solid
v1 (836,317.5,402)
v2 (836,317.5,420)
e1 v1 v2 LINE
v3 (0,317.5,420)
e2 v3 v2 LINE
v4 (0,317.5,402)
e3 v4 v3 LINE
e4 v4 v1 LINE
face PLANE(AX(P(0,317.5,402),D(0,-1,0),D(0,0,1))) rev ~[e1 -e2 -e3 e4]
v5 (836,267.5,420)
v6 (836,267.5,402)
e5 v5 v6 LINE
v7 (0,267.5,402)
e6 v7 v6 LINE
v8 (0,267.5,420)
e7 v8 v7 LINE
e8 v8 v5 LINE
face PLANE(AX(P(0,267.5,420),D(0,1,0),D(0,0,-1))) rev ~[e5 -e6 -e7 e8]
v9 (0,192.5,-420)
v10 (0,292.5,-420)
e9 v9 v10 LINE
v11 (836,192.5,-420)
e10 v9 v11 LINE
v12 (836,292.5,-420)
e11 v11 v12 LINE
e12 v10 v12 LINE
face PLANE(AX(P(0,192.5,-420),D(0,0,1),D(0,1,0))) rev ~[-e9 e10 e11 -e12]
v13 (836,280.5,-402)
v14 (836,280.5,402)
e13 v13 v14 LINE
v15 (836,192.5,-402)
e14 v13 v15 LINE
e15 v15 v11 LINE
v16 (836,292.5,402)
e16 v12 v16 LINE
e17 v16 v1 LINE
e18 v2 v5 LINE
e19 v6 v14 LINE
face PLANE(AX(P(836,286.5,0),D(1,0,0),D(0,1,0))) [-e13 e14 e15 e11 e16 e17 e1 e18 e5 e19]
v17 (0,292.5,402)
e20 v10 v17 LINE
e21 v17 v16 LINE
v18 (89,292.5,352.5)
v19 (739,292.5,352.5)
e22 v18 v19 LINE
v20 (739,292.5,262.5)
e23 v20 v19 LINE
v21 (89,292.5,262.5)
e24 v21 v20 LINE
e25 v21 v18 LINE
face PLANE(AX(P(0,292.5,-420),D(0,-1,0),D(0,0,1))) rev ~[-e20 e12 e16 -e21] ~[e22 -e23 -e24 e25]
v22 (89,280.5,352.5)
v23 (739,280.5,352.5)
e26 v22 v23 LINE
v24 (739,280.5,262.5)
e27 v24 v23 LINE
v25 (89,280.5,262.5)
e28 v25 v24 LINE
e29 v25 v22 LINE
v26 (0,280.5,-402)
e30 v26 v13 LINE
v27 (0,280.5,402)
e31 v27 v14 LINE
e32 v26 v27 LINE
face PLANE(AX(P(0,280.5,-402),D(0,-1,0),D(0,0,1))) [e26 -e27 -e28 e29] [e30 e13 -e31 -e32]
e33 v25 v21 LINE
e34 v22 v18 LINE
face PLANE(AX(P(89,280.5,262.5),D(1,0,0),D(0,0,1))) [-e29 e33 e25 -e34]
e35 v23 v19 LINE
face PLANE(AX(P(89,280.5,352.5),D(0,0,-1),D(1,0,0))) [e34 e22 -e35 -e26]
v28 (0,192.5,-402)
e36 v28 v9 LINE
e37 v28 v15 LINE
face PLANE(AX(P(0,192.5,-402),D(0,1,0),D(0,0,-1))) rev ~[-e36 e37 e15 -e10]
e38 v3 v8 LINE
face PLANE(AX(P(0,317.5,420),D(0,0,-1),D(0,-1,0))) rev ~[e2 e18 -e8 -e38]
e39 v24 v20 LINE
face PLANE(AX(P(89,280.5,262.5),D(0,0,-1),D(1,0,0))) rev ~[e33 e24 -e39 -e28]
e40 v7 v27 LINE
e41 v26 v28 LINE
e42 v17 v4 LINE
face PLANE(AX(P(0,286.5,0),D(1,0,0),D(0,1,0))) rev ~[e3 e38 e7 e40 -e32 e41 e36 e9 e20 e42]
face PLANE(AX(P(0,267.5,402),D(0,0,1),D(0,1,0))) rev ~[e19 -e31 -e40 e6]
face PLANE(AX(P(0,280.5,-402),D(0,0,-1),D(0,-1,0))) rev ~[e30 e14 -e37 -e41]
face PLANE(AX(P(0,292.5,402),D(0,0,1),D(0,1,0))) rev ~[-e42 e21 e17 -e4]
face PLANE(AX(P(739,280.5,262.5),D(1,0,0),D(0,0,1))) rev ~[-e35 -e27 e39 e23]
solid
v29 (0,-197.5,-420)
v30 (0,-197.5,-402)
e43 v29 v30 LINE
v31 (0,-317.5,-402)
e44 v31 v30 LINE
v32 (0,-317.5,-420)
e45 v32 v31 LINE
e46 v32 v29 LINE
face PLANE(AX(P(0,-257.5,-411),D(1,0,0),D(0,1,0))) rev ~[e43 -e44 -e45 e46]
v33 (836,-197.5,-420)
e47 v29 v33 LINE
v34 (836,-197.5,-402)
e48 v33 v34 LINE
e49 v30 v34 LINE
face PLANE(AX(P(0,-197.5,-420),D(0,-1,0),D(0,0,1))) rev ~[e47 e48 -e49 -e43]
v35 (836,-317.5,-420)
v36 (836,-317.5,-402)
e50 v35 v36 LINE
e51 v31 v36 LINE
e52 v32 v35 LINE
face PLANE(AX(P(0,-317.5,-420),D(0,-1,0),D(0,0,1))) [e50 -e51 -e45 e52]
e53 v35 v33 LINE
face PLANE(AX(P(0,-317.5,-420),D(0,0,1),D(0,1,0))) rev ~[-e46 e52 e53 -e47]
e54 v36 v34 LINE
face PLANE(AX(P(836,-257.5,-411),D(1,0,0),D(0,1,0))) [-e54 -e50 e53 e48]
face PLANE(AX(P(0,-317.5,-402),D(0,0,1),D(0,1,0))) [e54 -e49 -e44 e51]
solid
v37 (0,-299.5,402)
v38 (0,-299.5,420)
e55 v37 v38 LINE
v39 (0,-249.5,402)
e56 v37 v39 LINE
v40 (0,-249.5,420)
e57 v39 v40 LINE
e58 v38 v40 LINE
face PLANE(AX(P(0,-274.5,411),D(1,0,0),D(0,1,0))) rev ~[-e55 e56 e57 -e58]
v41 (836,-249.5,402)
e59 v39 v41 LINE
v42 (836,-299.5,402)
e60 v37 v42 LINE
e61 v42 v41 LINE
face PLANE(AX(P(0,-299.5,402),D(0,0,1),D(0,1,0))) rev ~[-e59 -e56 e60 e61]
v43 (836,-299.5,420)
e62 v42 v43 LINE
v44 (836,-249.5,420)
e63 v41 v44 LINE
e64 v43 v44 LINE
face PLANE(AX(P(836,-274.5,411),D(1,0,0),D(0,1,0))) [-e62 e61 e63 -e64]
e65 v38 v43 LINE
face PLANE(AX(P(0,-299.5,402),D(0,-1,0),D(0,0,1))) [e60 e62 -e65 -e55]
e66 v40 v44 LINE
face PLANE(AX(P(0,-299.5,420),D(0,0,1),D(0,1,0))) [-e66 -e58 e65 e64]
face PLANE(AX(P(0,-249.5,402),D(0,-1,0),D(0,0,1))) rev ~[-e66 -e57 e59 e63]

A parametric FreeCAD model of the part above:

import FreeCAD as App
import Part
import Sketcher


def add_polygon(sketch, points):
    """Adds a closed chain of lines whose ends are joined by coincident constraints."""
    first, n = sketch.GeometryCount, len(points)
    for a, b in zip(points, points[1:] + points[:1]):
        sketch.addGeometry(Part.LineSegment(App.Vector(*a, 0), App.Vector(*b, 0)), False)
    for i in range(n):
        sketch.addConstraint(Sketcher.Constraint("Coincident", first + i, 2, first + (i + 1) % n, 1))

doc = App.newDocument("Part")
params = doc.addObject("Spreadsheet::Sheet", "Params")
for row, (alias, value) in enumerate([
    ("sketch1_width", "50 mm"),
    ("sketch1_width2", "120 mm"),
    ("sketch1_width3", "88 mm"),
    ("sketch1_width4", "100 mm"),
    ("sketch1_width5", "25 mm"),
    ("pad1_length", "836 mm"),
    ("sketch2_width", "650 mm"),
    ("sketch2_height", "90 mm"),
    ("pocket1_length", "12 mm"),
], start=1):
    params.set(f"A{row}", alias)
    params.set(f"B{row}", "=" + value)
    params.setAlias(f"B{row}", alias)

body = doc.addObject("PartDesign::Body", "Body")
body.AllowCompound = True

# Sketch on YZ plane
sketch1 = doc.addObject("Sketcher::SketchObject", "Sketch")
body.addObject(sketch1)
sketch1.AttachmentSupport = (doc.YZ_Plane, [""])
sketch1.MapMode = "FlatFace"
add_polygon(sketch1, [(-300, 420), (-300, 402), (-250, 402), (-250, 420)])  # lines 0-3
add_polygon(sketch1, [(-318, -402), (-318, -420), (-198, -420), (-198, -402)])  # lines 4-7
add_polygon(sketch1, [(280, 402), (280, -402), (192, -402), (192, -420), (292, -420), (292, 402), (318, 402), (318, 420), (268, 420), (268, 402)])  # lines 8-17
sketch1.addConstraint([
    Sketcher.Constraint("Vertical", 0),
    Sketcher.Constraint("Horizontal", 1),
    Sketcher.Constraint("Vertical", 2),
    Sketcher.Constraint("Horizontal", 3),
    Sketcher.Constraint("Vertical", 4),
    Sketcher.Constraint("Horizontal", 5),
    Sketcher.Constraint("Vertical", 6),
    Sketcher.Constraint("Horizontal", 7),
    Sketcher.Constraint("Vertical", 8),
    Sketcher.Constraint("Horizontal", 9),
    Sketcher.Constraint("Vertical", 10),
    Sketcher.Constraint("Horizontal", 11),
    Sketcher.Constraint("Vertical", 12),
    Sketcher.Constraint("Horizontal", 13),
    Sketcher.Constraint("Vertical", 14),
    Sketcher.Constraint("Horizontal", 15),
    Sketcher.Constraint("Vertical", 16),
    Sketcher.Constraint("Horizontal", 17),
    Sketcher.Constraint("Symmetric", 7, 2, 13, 2, -1, 1),
    Sketcher.Constraint("Horizontal", 7, 2, 8, 2),
    Sketcher.Constraint("Horizontal", 5, 2, 10, 2),
    Sketcher.Constraint("Horizontal", 1, 2, 12, 2),
    Sketcher.Constraint("Horizontal", 3, 2, 14, 2),
    Sketcher.Constraint("Horizontal", 13, 2, 16, 2),
    Sketcher.Constraint("Equal", 3, 15),
    Sketcher.Constraint("Equal", 2, 4),
    Sketcher.Constraint("DistanceX", 1, 1, 1, 2, 50.0),
    Sketcher.Constraint("DistanceX", 5, 1, 5, 2, 120.0),
    Sketcher.Constraint("DistanceX", 9, 2, 9, 1, 88.0),
    Sketcher.Constraint("DistanceX", 11, 1, 11, 2, 100.0),
    Sketcher.Constraint("DistanceX", 13, 1, 13, 2, 25.0),
    Sketcher.Constraint("DistanceY", 0, 2, 0, 1, 18.0),
    Sketcher.Constraint("DistanceY", 8, 2, 8, 1, 804.0),
    Sketcher.Constraint("DistanceX", 4, 2, 0, 2, 18.0),
    Sketcher.Constraint("DistanceX", 6, 2, 8, 2, 478.0),
])
sketch1.setExpression("Constraints[44]", "Params.sketch1_width")
sketch1.setExpression("Constraints[45]", "Params.sketch1_width2")
sketch1.setExpression("Constraints[46]", "Params.sketch1_width3")
sketch1.setExpression("Constraints[47]", "Params.sketch1_width4")
sketch1.setExpression("Constraints[48]", "Params.sketch1_width5")
pad1 = doc.addObject("PartDesign::Pad", "Pad")
body.addObject(pad1)
pad1.Profile = sketch1
pad1.setExpression("Length", "Params.pad1_length")

# Sketch on XZ plane
sketch2 = doc.addObject("Sketcher::SketchObject", "Sketch001")
body.addObject(sketch2)
sketch2.AttachmentSupport = (doc.XZ_Plane, [""])
sketch2.MapMode = "FlatFace"
sketch2.AttachmentOffset = App.Placement(App.Vector(0, 0, -280.5), App.Rotation())
add_polygon(sketch2, [(89, 352), (89, 262), (739, 262), (739, 352)])  # lines 0-3
sketch2.addConstraint([
    Sketcher.Constraint("Vertical", 0),
    Sketcher.Constraint("Horizontal", 1),
    Sketcher.Constraint("Vertical", 2),
    Sketcher.Constraint("Horizontal", 3),
    Sketcher.Constraint("DistanceX", 1, 1, 1, 2, 650.0),
    Sketcher.Constraint("DistanceY", 0, 2, 0, 1, 90.0),
    Sketcher.Constraint("DistanceX", -1, 1, 0, 2, 89.0),
    Sketcher.Constraint("DistanceY", -1, 1, 0, 2, 262.5),
])
sketch2.setExpression("Constraints[8]", "Params.sketch2_width")
sketch2.setExpression("Constraints[9]", "Params.sketch2_height")
pocket1 = doc.addObject("PartDesign::Pocket", "Pocket")
body.addObject(pocket1)
pocket1.Profile = sketch2
pocket1.setExpression("Length", "Params.pocket1_length")

doc.recompute()
